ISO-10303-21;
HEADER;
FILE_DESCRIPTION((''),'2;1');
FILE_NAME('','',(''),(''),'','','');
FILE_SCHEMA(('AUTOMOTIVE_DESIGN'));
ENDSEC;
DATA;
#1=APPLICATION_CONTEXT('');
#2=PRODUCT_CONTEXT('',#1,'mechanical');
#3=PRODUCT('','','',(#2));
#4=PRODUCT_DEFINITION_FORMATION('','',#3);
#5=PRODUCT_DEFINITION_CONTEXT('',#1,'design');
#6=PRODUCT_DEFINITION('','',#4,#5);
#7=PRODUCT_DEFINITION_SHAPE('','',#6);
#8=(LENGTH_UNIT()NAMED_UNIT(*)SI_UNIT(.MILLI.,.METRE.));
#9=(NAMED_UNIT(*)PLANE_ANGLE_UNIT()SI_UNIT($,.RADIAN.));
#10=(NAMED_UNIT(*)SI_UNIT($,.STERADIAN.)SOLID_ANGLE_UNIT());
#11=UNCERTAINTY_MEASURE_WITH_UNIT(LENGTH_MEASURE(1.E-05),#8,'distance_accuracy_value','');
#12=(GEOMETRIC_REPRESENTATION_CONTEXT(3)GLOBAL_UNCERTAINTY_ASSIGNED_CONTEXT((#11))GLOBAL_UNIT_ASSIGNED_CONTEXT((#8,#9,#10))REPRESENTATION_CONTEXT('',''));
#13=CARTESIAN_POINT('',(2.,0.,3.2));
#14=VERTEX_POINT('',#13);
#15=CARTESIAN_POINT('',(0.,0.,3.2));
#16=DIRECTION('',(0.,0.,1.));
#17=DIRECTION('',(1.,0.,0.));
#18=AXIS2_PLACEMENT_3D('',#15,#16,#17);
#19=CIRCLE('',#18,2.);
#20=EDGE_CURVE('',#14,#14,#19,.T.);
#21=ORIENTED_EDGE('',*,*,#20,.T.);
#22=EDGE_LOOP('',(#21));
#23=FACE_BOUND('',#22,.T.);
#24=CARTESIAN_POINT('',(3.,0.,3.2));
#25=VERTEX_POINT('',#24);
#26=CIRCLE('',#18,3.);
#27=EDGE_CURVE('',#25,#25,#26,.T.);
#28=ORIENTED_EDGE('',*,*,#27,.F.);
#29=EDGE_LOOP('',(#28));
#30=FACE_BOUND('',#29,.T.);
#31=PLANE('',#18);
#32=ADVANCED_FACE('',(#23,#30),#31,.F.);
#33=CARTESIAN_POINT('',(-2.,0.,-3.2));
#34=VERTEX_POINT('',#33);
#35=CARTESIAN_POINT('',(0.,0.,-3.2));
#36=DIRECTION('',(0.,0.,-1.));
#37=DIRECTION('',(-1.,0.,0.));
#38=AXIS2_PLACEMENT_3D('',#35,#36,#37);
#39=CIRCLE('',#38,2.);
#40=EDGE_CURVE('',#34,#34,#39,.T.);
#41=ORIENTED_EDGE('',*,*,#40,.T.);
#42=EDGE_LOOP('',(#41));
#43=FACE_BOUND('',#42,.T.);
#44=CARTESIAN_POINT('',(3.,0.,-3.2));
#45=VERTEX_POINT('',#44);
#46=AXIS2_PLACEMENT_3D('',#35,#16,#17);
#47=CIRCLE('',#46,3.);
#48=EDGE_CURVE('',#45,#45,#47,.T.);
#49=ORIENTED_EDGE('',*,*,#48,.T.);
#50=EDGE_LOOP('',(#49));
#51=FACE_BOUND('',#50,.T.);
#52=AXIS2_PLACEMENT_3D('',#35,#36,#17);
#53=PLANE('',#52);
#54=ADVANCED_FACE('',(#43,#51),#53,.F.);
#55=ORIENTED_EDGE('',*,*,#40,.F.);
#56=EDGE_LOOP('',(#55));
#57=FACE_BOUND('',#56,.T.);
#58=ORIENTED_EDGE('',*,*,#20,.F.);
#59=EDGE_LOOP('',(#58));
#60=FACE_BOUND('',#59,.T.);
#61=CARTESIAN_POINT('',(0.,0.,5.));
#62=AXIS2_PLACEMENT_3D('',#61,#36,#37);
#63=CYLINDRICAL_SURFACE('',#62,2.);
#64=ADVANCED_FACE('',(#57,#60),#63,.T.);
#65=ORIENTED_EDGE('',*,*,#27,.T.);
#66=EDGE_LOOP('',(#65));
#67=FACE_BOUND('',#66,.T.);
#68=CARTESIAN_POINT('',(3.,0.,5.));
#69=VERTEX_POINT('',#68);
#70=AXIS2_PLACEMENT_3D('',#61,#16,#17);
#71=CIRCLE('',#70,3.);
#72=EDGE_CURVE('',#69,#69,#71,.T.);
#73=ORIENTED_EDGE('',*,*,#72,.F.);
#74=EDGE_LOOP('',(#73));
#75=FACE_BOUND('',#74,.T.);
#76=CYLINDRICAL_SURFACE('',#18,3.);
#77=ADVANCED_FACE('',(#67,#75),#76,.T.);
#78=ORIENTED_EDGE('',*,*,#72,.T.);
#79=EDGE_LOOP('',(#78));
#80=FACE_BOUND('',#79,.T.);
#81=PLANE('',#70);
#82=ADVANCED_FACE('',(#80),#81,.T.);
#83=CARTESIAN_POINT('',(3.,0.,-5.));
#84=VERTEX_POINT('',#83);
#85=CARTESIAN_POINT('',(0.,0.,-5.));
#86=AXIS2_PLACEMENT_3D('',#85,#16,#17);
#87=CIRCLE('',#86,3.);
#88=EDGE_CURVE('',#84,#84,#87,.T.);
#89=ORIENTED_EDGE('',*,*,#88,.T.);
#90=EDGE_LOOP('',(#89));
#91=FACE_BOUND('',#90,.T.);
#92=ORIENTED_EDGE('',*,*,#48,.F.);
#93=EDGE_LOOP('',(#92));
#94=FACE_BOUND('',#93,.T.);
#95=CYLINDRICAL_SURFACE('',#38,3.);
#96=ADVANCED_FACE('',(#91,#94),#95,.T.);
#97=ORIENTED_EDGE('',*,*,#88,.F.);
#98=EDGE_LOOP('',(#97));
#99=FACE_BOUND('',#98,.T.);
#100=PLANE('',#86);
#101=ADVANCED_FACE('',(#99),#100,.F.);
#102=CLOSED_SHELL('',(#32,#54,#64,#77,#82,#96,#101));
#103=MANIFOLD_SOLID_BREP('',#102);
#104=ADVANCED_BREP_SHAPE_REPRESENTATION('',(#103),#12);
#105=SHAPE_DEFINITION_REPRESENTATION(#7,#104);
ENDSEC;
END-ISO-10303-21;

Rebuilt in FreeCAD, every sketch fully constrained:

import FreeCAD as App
import Part
import Sketcher

doc = App.newDocument("Part")
body = doc.addObject("PartDesign::Body", "Body")

# Sketch on XY plane
sketch1 = body.newObject("Sketcher::SketchObject", "Sketch")
sketch1.AttachmentSupport = (doc.getObject("XY_Plane"), [""])
sketch1.MapMode = "FlatFace"
sketch1.addGeometry(Part.Circle(App.Vector(0, 0, 0), App.Vector(0, 0, 1), 2), False)
sketch1.addConstraint(Sketcher.Constraint("Coincident", 0, 3, -1, 1))
sketch1.addConstraint(Sketcher.Constraint("Diameter", 0, 4.0))
pad1 = body.newObject("PartDesign::Pad", "Pad")
pad1.Profile = sketch1
pad1.Length = 10
pad1.Midplane = True

# Sketch on XY plane
sketch2 = body.newObject("Sketcher::SketchObject", "Sketch001")
sketch2.AttachmentSupport = (doc.getObject("XY_Plane"), [""])
sketch2.MapMode = "FlatFace"
sketch2.AttachmentOffset = App.Placement(App.Vector(0, 0, 5), App.Rotation())
sketch2.addGeometry(Part.Circle(App.Vector(0, 0, 0), App.Vector(0, 0, 1), 3), False)
sketch2.addConstraint(Sketcher.Constraint("Coincident", 0, 3, -1, 1))
sketch2.addConstraint(Sketcher.Constraint("Diameter", 0, 6.0))
pad2 = body.newObject("PartDesign::Pad", "Pad001")
pad2.Profile = sketch2
pad2.Length = 1.8
pad2.Reversed = True
doc.recompute()

mirrored = body.newObject("PartDesign::Mirrored", "Mirrored")
mirrored.Originals = [pad2]
mirrored.MirrorPlane = (doc.getObject("XY_Plane"), [""])
body.Tip = mirrored

doc.recompute()
